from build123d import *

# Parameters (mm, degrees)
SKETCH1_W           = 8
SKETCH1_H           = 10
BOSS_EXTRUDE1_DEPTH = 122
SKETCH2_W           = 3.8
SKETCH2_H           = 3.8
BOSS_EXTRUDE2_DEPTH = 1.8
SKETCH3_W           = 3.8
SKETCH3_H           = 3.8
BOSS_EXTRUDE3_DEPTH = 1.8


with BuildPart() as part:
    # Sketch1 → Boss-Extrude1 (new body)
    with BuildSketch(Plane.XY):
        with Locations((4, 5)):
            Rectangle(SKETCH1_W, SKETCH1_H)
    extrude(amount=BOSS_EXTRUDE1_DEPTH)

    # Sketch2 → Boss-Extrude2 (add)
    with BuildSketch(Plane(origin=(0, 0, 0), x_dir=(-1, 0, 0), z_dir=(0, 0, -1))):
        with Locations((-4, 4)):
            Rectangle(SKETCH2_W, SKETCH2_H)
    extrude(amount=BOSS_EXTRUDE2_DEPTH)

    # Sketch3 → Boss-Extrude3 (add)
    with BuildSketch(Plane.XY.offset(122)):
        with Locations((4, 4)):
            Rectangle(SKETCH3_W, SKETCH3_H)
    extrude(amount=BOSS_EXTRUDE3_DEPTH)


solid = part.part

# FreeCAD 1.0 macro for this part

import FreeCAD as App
import Part
import Sketcher

V = App.Vector


def add_polygon(sketch, points):
    """Adds a closed chain of lines whose ends are joined by coincident constraints."""
    first, n = sketch.GeometryCount, len(points)
    for a, b in zip(points, points[1:] + points[:1]):
        sketch.addGeometry(Part.LineSegment(App.Vector(*a, 0), App.Vector(*b, 0)), False)
    for i in range(n):
        sketch.addConstraint(Sketcher.Constraint("Coincident", first + i, 2, first + (i + 1) % n, 1))

doc = App.newDocument("Part")
body = doc.addObject("PartDesign::Body", "Body")

# Sketch on XY plane
sketch1 = body.newObject("Sketcher::SketchObject", "Sketch")
sketch1.AttachmentSupport = (doc.getObject("XY_Plane"), [""])
sketch1.MapMode = "FlatFace"
add_polygon(sketch1, [(0, 10), (0, 0), (8, 0), (8, 10)])  # lines 0-3
sketch1.addConstraint(Sketcher.Constraint("Vertical", 0))
sketch1.addConstraint(Sketcher.Constraint("Horizontal", 1))
sketch1.addConstraint(Sketcher.Constraint("Vertical", 2))
sketch1.addConstraint(Sketcher.Constraint("Horizontal", 3))
sketch1.addConstraint(Sketcher.Constraint("Coincident", 0, 2, -1, 1))
sketch1.addConstraint(Sketcher.Constraint("DistanceX", 1, 1, 1, 2, 8.0))
sketch1.addConstraint(Sketcher.Constraint("DistanceY", 0, 2, 0, 1, 10.0))
pad1 = body.newObject("PartDesign::Pad", "Pad")
pad1.Profile = sketch1
pad1.Length = 122

# Sketch on XY plane
sketch2 = body.newObject("Sketcher::SketchObject", "Sketch001")
sketch2.AttachmentSupport = (doc.getObject("XY_Plane"), [""])
sketch2.MapMode = "FlatFace"
add_polygon(sketch2, [(5.9, 5.9), (5.9, 2.1), (2.1, 2.1), (2.1, 5.9)])  # lines 0-3
sketch2.addConstraint(Sketcher.Constraint("Vertical", 0))
sketch2.addConstraint(Sketcher.Constraint("Horizontal", 1))
sketch2.addConstraint(Sketcher.Constraint("Vertical", 2))
sketch2.addConstraint(Sketcher.Constraint("Horizontal", 3))
sketch2.addConstraint(Sketcher.Constraint("Equal", 3, 0))
sketch2.addConstraint(Sketcher.Constraint("DistanceX", 1, 2, 1, 1, 3.8))
sketch2.addConstraint(Sketcher.Constraint("DistanceX", -1, 1, 0, 2, 5.9))
sketch2.addConstraint(Sketcher.Constraint("DistanceY", -1, 1, 0, 2, 2.1))
pad2 = body.newObject("PartDesign::Pad", "Pad001")
pad2.Profile = sketch2
pad2.Length = 1.8
pad2.Reversed = True

# Sketch on XY plane
sketch3 = body.newObject("Sketcher::SketchObject", "Sketch002")
sketch3.AttachmentSupport = (doc.getObject("XY_Plane"), [""])
sketch3.MapMode = "FlatFace"
sketch3.AttachmentOffset = App.Placement(V(0, 0, 122), App.Rotation())
add_polygon(sketch3, [(2.1, 5.9), (2.1, 2.1), (5.9, 2.1), (5.9, 5.9)])  # lines 0-3
sketch3.addConstraint(Sketcher.Constraint("Vertical", 0))
sketch3.addConstraint(Sketcher.Constraint("Horizontal", 1))
sketch3.addConstraint(Sketcher.Constraint("Vertical", 2))
sketch3.addConstraint(Sketcher.Constraint("Horizontal", 3))
sketch3.addConstraint(Sketcher.Constraint("Equal", 3, 0))
sketch3.addConstraint(Sketcher.Constraint("DistanceX", 1, 1, 1, 2, 3.8))
sketch3.addConstraint(Sketcher.Constraint("DistanceX", -1, 1, 0, 2, 2.1))
sketch3.addConstraint(Sketcher.Constraint("DistanceY", -1, 1, 0, 2, 2.1))
pad3 = body.newObject("PartDesign::Pad", "Pad002")
pad3.Profile = sketch3
pad3.Length = 1.8

doc.recompute()
